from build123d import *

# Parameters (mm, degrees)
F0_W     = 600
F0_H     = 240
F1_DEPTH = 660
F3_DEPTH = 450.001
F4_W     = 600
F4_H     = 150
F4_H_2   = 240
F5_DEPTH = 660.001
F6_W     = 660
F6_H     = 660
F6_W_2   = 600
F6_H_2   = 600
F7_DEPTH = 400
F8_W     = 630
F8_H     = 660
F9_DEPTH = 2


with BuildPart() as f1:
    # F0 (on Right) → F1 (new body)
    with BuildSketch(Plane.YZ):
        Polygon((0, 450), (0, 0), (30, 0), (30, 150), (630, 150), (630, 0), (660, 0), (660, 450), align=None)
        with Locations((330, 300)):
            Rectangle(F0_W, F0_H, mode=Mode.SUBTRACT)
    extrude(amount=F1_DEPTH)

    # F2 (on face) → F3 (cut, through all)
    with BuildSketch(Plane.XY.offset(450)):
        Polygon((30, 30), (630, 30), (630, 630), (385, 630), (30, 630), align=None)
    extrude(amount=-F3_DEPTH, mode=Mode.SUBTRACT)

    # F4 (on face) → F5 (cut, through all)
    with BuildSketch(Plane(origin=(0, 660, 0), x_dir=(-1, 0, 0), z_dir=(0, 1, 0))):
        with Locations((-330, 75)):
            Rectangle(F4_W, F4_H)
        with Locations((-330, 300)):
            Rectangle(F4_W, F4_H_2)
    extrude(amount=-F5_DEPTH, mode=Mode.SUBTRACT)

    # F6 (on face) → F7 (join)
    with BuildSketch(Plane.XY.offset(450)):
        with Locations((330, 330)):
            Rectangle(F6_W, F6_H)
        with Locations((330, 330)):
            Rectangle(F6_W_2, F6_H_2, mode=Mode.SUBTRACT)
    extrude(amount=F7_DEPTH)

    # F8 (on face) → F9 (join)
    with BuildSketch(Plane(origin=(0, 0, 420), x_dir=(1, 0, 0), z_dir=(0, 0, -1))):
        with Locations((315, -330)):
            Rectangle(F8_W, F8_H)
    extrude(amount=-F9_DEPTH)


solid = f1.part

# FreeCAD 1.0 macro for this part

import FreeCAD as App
import Part
import Sketcher
from FreeCAD import Vector


def add_polygon(sketch, points):
    """Adds a closed chain of lines whose ends are joined by coincident constraints."""
    first, n = sketch.GeometryCount, len(points)
    for a, b in zip(points, points[1:] + points[:1]):
        sketch.addGeometry(Part.LineSegment(App.Vector(*a, 0), App.Vector(*b, 0)), False)
    for i in range(n):
        sketch.addConstraint(Sketcher.Constraint("Coincident", first + i, 2, first + (i + 1) % n, 1))

doc = App.newDocument("Part")
body = doc.addObject("PartDesign::Body", "Body")

# Sketch on YZ plane
sketch1 = body.newObject("Sketcher::SketchObject", "Sketch")
sketch1.AttachmentSupport = (doc.getObject("YZ_Plane"), [""])
sketch1.MapMode = "FlatFace"
add_polygon(sketch1, [(0, 450), (0, 0), (30, 0), (30, 150), (630, 150), (630, 0), (660, 0), (660, 450)])  # lines 0-7
add_polygon(sketch1, [(630, 180), (30, 180), (30, 420), (630, 420)])  # lines 8-11
sketch1.addConstraint(Sketcher.Constraint("Vertical", 0))
sketch1.addConstraint(Sketcher.Constraint("Horizontal", 1))
sketch1.addConstraint(Sketcher.Constraint("Vertical", 2))
sketch1.addConstraint(Sketcher.Constraint("Horizontal", 3))
sketch1.addConstraint(Sketcher.Constraint("Vertical", 4))
sketch1.addConstraint(Sketcher.Constraint("Horizontal", 5))
sketch1.addConstraint(Sketcher.Constraint("Vertical", 6))
sketch1.addConstraint(Sketcher.Constraint("Horizontal", 7))
sketch1.addConstraint(Sketcher.Constraint("Horizontal", 8))
sketch1.addConstraint(Sketcher.Constraint("Vertical", 9))
sketch1.addConstraint(Sketcher.Constraint("Horizontal", 10))
sketch1.addConstraint(Sketcher.Constraint("Vertical", 11))
sketch1.addConstraint(Sketcher.Constraint("Coincident", 0, 2, -1, 1))
sketch1.addConstraint(Sketcher.Constraint("PointOnObject", 4, 2, -1))
sketch1.addConstraint(Sketcher.Constraint("Vertical", 2, 2, 8, 2))
sketch1.addConstraint(Sketcher.Constraint("Vertical", 4, 2, 10, 2))
sketch1.addConstraint(Sketcher.Constraint("Equal", 1, 5))
sketch1.addConstraint(Sketcher.Constraint("DistanceX", 1, 1, 1, 2, 30.0))
sketch1.addConstraint(Sketcher.Constraint("DistanceX", 3, 1, 3, 2, 600.0))
sketch1.addConstraint(Sketcher.Constraint("DistanceY", 0, 2, 0, 1, 450.0))
sketch1.addConstraint(Sketcher.Constraint("DistanceY", 2, 1, 2, 2, 150.0))
sketch1.addConstraint(Sketcher.Constraint("DistanceY", 9, 1, 9, 2, 240.0))
sketch1.addConstraint(Sketcher.Constraint("DistanceY", -1, 1, 8, 2, 180.0))
pad1 = body.newObject("PartDesign::Pad", "Pad")
pad1.Profile = sketch1
pad1.Length = 660

# Sketch on XY plane
sketch2 = body.newObject("Sketcher::SketchObject", "Sketch001")
sketch2.AttachmentSupport = (doc.getObject("XY_Plane"), [""])
sketch2.MapMode = "FlatFace"
sketch2.AttachmentOffset = App.Placement(Vector(0, 0, 450), App.Rotation())
add_polygon(sketch2, [(30, 30), (630, 30), (630, 630), (30, 630)])  # lines 0-3
sketch2.addConstraint(Sketcher.Constraint("Horizontal", 0))
sketch2.addConstraint(Sketcher.Constraint("Vertical", 1))
sketch2.addConstraint(Sketcher.Constraint("Horizontal", 2))
sketch2.addConstraint(Sketcher.Constraint("Vertical", 3))
sketch2.addConstraint(Sketcher.Constraint("Equal", 2, 1))
sketch2.addConstraint(Sketcher.Constraint("DistanceX", 0, 1, 0, 2, 600.0))
sketch2.addConstraint(Sketcher.Constraint("DistanceX", -1, 1, 0, 2, 630.0))
sketch2.addConstraint(Sketcher.Constraint("DistanceY", -1, 1, 0, 2, 30.0))
pocket1 = body.newObject("PartDesign::Pocket", "Pocket")
pocket1.Profile = sketch2
pocket1.Type = "ThroughAll"

# Sketch on XZ plane
sketch3 = body.newObject("Sketcher::SketchObject", "Sketch002")
sketch3.AttachmentSupport = (doc.getObject("XZ_Plane"), [""])
sketch3.MapMode = "FlatFace"
sketch3.AttachmentOffset = App.Placement(Vector(0, 0, -660), App.Rotation())
add_polygon(sketch3, [(630, 150), (630, 0), (30, 0), (30, 150)])  # lines 0-3
add_polygon(sketch3, [(630, 420), (630, 180), (30, 180), (30, 420)])  # lines 4-7
sketch3.addConstraint(Sketcher.Constraint("Vertical", 0))
sketch3.addConstraint(Sketcher.Constraint("Horizontal", 1))
sketch3.addConstraint(Sketcher.Constraint("Vertical", 2))
sketch3.addConstraint(Sketcher.Constraint("Horizontal", 3))
sketch3.addConstraint(Sketcher.Constraint("Vertical", 4))
sketch3.addConstraint(Sketcher.Constraint("Horizontal", 5))
sketch3.addConstraint(Sketcher.Constraint("Vertical", 6))
sketch3.addConstraint(Sketcher.Constraint("Horizontal", 7))
sketch3.addConstraint(Sketcher.Constraint("PointOnObject", 0, 2, -1))
sketch3.addConstraint(Sketcher.Constraint("Vertical", 3, 2, 4, 2))
sketch3.addConstraint(Sketcher.Constraint("Vertical", 2, 2, 5, 2))
sketch3.addConstraint(Sketcher.Constraint("DistanceX", 1, 2, 1, 1, 600.0))
sketch3.addConstraint(Sketcher.Constraint("DistanceY", 0, 2, 0, 1, 150.0))
sketch3.addConstraint(Sketcher.Constraint("DistanceY", 4, 2, 4, 1, 240.0))
sketch3.addConstraint(Sketcher.Constraint("DistanceX", -1, 1, 0, 2, 630.0))
sketch3.addConstraint(Sketcher.Constraint("DistanceY", -1, 1, 4, 2, 180.0))
pocket2 = body.newObject("PartDesign::Pocket", "Pocket001")
pocket2.Profile = sketch3
pocket2.Type = "ThroughAll"
pocket2.Reversed = True

# Sketch on XY plane
sketch4 = body.newObject("Sketcher::SketchObject", "Sketch003")
sketch4.AttachmentSupport = (doc.getObject("XY_Plane"), [""])
sketch4.MapMode = "FlatFace"
sketch4.AttachmentOffset = App.Placement(Vector(0, 0, 450), App.Rotation())
add_polygon(sketch4, [(0, 660), (0, 0), (660, 0), (660, 660)])  # lines 0-3
add_polygon(sketch4, [(630, 30), (30, 30), (30, 630), (630, 630)])  # lines 4-7
sketch4.addConstraint(Sketcher.Constraint("Vertical", 0))
sketch4.addConstraint(Sketcher.Constraint("Horizontal", 1))
sketch4.addConstraint(Sketcher.Constraint("Vertical", 2))
sketch4.addConstraint(Sketcher.Constraint("Horizontal", 3))
sketch4.addConstraint(Sketcher.Constraint("Horizontal", 4))
sketch4.addConstraint(Sketcher.Constraint("Vertical", 5))
sketch4.addConstraint(Sketcher.Constraint("Horizontal", 6))
sketch4.addConstraint(Sketcher.Constraint("Vertical", 7))
sketch4.addConstraint(Sketcher.Constraint("Coincident", 0, 2, -1, 1))
sketch4.addConstraint(Sketcher.Constraint("Equal", 3, 0))
sketch4.addConstraint(Sketcher.Constraint("Equal", 6, 5))
sketch4.addConstraint(Sketcher.Constraint("DistanceX", 1, 1, 1, 2, 660.0))
sketch4.addConstraint(Sketcher.Constraint("DistanceX", 4, 2, 4, 1, 600.0))
sketch4.addConstraint(Sketcher.Constraint("DistanceX", -1, 1, 4, 2, 30.0))
sketch4.addConstraint(Sketcher.Constraint("DistanceY", -1, 1, 4, 2, 30.0))
pad2 = body.newObject("PartDesign::Pad", "Pad001")
pad2.Profile = sketch4
pad2.Length = 400

# Sketch on XY plane
sketch5 = body.newObject("Sketcher::SketchObject", "Sketch004")
sketch5.AttachmentSupport = (doc.getObject("XY_Plane"), [""])
sketch5.MapMode = "FlatFace"
sketch5.AttachmentOffset = App.Placement(Vector(0, 0, 420), App.Rotation())
add_polygon(sketch5, [(0, 0), (0, 660), (630, 660), (630, 0)])  # lines 0-3
sketch5.addConstraint(Sketcher.Constraint("Vertical", 0))
sketch5.addConstraint(Sketcher.Constraint("Horizontal", 1))
sketch5.addConstraint(Sketcher.Constraint("Vertical", 2))
sketch5.addConstraint(Sketcher.Constraint("Horizontal", 3))
sketch5.addConstraint(Sketcher.Constraint("Coincident", 3, 2, -1, 1))
sketch5.addConstraint(Sketcher.Constraint("DistanceX", 1, 1, 1, 2, 630.0))
sketch5.addConstraint(Sketcher.Constraint("DistanceY", 0, 1, 0, 2, 660.0))
pad3 = body.newObject("PartDesign::Pad", "Pad002")
pad3.Profile = sketch5
pad3.Length = 2

doc.recompute()
